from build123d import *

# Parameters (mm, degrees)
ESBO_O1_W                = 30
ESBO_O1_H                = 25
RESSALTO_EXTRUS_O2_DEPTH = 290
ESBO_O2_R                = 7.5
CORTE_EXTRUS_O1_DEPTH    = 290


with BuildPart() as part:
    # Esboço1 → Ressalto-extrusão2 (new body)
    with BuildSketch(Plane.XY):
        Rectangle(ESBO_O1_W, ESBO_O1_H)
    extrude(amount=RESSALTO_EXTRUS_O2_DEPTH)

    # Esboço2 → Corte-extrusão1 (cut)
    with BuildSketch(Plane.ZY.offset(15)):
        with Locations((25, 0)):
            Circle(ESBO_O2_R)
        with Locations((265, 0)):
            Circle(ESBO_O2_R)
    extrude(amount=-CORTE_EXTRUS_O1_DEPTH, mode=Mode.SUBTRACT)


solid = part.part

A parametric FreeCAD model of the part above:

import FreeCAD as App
import Part
import Sketcher

V = App.Vector

doc = App.newDocument("Part")
params = doc.addObject("Spreadsheet::Sheet", "Params")
for row, (alias, value) in enumerate([
    ("sketch1_width", "30 mm"),
    ("sketch1_height", "25 mm"),
    ("pad1_length", "290 mm"),
    ("sketch2_diameter", "15 mm"),
    ("pocket1_length", "290 mm"),
], start=1):
    params.set(f"A{row}", alias)
    params.set(f"B{row}", "=" + value)
    params.setAlias(f"B{row}", alias)

body = doc.addObject("PartDesign::Body", "Body")

sketch1 = body.newObject("Sketcher::SketchObject", "Sketch")
sketch1.AttachmentSupport = (doc.getObject("XY_Plane"), [""])
sketch1.MapMode = "FlatFace"
sketch1.addGeometry(Part.LineSegment(V(-15, 12, 0), V(-15, -12, 0)), False)
sketch1.addGeometry(Part.LineSegment(V(-15, -12, 0), V(15, -12, 0)), False)
sketch1.addGeometry(Part.LineSegment(V(15, -12, 0), V(15, 12, 0)), False)
sketch1.addGeometry(Part.LineSegment(V(15, 12, 0), V(-15, 12, 0)), False)
sketch1.addConstraint(Sketcher.Constraint("Coincident", 0, 2, 1, 1))
sketch1.addConstraint(Sketcher.Constraint("Coincident", 1, 2, 2, 1))
sketch1.addConstraint(Sketcher.Constraint("Coincident", 2, 2, 3, 1))
sketch1.addConstraint(Sketcher.Constraint("Coincident", 3, 2, 0, 1))
sketch1.addConstraint(Sketcher.Constraint("Vertical", 0))
sketch1.addConstraint(Sketcher.Constraint("Horizontal", 1))
sketch1.addConstraint(Sketcher.Constraint("Vertical", 2))
sketch1.addConstraint(Sketcher.Constraint("Horizontal", 3))
sketch1.addConstraint(Sketcher.Constraint("Symmetric", 0, 2, 2, 2, -1, 1))
sketch1.addConstraint(Sketcher.Constraint("DistanceX", 1, 1, 1, 2, 30.0))
sketch1.addConstraint(Sketcher.Constraint("DistanceY", 0, 2, 0, 1, 25.0))
sketch1.setExpression("Constraints[9]", "Params.sketch1_width")
sketch1.setExpression("Constraints[10]", "Params.sketch1_height")
pad1 = body.newObject("PartDesign::Pad", "Pad")
pad1.Profile = sketch1
pad1.setExpression("Length", "Params.pad1_length")

sketch2 = body.newObject("Sketcher::SketchObject", "Sketch001")
sketch2.AttachmentSupport = (doc.getObject("YZ_Plane"), [""])
sketch2.MapMode = "FlatFace"
sketch2.AttachmentOffset = App.Placement(V(0, 0, -15), App.Rotation())
sketch2.addGeometry(Part.Circle(V(0, 25, 0), V(0, 0, 1), 8), False)
sketch2.addGeometry(Part.Circle(V(0, 265, 0), V(0, 0, 1), 8), False)
sketch2.addConstraint(Sketcher.Constraint("Equal", 0, 1))
sketch2.addConstraint(Sketcher.Constraint("PointOnObject", 0, 3, -2))
sketch2.addConstraint(Sketcher.Constraint("PointOnObject", 1, 3, -2))
sketch2.addConstraint(Sketcher.Constraint("Diameter", 0, 15.0))
sketch2.addConstraint(Sketcher.Constraint("DistanceY", -1, 1, 0, 3, 25.0))
sketch2.addConstraint(Sketcher.Constraint("DistanceY", -1, 1, 1, 3, 265.0))
sketch2.setExpression("Constraints[3]", "Params.sketch2_diameter")
pocket1 = body.newObject("PartDesign::Pocket", "Pocket")
pocket1.Profile = sketch2
pocket1.setExpression("Length", "Params.pocket1_length")
pocket1.Reversed = True

doc.recompute()
